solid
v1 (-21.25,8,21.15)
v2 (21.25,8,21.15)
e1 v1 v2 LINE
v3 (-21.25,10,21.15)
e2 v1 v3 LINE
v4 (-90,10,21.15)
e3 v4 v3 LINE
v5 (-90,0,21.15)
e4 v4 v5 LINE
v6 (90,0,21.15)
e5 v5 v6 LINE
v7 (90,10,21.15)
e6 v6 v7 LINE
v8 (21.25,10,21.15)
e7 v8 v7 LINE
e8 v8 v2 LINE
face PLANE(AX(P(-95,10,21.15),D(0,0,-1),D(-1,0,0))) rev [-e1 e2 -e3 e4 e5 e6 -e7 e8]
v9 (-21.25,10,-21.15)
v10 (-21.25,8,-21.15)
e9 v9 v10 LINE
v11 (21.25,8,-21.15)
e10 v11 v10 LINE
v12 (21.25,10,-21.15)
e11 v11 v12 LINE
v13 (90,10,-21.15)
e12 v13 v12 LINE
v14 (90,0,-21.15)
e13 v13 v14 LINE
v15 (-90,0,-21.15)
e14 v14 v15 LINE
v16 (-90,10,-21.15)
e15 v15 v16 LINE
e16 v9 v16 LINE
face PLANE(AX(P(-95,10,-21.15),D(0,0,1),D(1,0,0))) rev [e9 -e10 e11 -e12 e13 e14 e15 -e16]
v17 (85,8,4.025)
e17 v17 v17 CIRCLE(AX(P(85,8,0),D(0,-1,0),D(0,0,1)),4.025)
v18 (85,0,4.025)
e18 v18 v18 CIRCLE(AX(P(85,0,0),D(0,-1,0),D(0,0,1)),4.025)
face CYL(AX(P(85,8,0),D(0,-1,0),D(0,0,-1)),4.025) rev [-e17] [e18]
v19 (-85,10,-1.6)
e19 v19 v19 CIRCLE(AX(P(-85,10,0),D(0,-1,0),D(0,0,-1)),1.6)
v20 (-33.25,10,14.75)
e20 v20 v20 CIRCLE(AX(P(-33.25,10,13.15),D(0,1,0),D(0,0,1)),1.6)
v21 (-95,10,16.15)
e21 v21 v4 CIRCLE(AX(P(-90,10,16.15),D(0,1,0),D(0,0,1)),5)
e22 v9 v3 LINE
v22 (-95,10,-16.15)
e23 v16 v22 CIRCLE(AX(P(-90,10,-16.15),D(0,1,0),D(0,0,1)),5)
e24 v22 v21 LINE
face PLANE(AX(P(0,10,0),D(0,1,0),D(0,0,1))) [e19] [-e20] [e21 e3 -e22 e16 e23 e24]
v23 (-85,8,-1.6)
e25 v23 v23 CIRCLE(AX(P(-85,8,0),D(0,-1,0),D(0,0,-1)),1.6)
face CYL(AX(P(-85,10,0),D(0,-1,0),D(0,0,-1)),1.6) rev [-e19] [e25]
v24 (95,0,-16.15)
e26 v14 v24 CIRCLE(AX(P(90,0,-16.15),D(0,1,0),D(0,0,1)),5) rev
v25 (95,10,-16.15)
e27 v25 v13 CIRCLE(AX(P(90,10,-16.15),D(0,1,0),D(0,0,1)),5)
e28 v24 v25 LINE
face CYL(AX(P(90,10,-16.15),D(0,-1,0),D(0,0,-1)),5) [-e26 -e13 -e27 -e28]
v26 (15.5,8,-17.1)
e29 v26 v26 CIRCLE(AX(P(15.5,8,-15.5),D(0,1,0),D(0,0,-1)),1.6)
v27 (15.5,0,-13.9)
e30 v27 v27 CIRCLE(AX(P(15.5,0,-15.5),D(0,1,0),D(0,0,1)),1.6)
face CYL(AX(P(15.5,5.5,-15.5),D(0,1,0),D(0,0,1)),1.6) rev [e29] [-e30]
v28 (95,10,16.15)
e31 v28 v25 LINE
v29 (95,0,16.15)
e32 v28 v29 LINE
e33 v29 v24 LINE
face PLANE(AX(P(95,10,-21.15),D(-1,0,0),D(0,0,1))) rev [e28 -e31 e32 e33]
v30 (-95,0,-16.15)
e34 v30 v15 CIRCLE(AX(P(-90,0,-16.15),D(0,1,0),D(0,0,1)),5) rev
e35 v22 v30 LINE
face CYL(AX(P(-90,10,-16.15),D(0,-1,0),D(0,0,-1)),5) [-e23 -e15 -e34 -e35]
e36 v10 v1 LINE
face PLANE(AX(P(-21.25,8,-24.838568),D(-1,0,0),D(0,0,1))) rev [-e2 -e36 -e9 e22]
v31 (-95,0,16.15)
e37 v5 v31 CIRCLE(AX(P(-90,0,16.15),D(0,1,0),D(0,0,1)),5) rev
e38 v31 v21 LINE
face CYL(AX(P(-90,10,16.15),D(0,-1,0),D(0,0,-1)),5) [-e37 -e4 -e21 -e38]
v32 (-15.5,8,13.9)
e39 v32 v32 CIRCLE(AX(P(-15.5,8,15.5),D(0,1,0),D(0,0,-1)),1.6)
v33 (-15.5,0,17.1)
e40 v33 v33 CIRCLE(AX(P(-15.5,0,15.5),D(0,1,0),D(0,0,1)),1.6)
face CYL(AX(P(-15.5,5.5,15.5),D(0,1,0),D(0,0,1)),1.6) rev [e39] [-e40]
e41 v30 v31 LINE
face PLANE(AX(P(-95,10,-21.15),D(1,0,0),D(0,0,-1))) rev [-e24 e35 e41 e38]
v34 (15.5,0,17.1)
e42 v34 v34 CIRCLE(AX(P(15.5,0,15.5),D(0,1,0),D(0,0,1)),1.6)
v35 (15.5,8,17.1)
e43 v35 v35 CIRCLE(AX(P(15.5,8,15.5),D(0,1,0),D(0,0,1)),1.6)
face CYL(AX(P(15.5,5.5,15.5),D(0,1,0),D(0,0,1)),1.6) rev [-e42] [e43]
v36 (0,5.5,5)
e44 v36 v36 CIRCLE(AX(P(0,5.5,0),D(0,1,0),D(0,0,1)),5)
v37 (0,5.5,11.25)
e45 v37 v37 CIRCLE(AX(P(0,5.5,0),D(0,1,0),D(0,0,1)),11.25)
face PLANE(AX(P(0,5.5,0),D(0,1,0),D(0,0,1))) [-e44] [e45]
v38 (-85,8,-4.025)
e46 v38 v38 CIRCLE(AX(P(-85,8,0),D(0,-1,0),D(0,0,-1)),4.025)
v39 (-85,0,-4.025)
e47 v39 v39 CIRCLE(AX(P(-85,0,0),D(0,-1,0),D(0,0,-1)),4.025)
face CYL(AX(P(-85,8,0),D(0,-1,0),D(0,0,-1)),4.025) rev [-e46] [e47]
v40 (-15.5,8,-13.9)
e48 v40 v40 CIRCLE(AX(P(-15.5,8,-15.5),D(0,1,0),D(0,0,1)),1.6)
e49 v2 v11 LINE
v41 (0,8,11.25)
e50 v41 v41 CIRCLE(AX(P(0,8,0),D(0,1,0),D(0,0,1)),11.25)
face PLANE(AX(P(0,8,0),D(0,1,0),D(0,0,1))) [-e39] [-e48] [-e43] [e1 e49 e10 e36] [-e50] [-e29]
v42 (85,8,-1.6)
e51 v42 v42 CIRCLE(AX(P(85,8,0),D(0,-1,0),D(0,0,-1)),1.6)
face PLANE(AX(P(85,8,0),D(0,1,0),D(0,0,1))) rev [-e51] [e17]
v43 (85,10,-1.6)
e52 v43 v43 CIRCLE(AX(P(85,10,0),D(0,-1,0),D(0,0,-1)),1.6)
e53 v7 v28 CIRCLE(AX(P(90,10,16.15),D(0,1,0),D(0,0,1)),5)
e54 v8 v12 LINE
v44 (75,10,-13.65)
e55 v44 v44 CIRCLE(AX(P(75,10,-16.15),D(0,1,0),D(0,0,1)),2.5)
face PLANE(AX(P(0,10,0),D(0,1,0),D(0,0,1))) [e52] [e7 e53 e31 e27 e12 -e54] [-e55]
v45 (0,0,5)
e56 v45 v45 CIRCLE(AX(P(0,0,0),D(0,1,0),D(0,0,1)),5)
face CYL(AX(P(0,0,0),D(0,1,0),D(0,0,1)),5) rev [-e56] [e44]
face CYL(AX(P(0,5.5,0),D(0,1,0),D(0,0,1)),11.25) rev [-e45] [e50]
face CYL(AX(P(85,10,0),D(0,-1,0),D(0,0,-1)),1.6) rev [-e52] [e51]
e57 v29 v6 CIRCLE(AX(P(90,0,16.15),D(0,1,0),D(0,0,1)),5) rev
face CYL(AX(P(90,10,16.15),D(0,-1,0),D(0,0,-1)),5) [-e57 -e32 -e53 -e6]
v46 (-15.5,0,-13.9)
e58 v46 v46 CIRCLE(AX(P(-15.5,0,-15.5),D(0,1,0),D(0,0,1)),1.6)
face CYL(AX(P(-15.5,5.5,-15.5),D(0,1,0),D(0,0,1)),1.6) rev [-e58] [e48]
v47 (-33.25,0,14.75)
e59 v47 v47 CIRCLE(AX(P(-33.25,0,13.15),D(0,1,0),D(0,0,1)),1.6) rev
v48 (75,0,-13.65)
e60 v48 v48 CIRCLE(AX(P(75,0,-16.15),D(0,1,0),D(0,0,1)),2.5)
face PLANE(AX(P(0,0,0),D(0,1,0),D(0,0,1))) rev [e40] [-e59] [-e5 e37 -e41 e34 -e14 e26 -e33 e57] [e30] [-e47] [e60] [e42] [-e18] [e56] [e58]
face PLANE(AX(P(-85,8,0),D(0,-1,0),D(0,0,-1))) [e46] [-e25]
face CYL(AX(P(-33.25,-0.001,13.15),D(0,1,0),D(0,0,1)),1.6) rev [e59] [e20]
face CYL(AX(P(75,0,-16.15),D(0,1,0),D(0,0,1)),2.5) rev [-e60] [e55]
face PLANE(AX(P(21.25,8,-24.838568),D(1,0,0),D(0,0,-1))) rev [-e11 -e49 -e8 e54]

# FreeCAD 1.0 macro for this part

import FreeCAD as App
import Part
import Sketcher

V = App.Vector
Q = App.Units.Quantity


def edges_at(feature, points):
    """Names of the edges that pass closest to the given points."""
    edges = feature.Shape.Edges
    near = lambda p: min(range(len(edges)), key=lambda i: edges[i].distToShape(Part.Vertex(*p))[0])
    return sorted({f"Edge{near(p) + 1}" for p in points})

doc = App.newDocument("Part")
body = doc.addObject("PartDesign::Body", "Body")

sketch1 = body.newObject("Sketcher::SketchObject", "Sketch")
sketch1.AttachmentSupport = (doc.getObject("XZ_Plane"), [""])
sketch1.MapMode = "FlatFace"
sketch1.addGeometry([
    Part.LineSegment(V(-95, -21.15, 0), V(-95, 21.15, 0)),
    Part.LineSegment(V(-95, 21.15, 0), V(95, 21.15, 0)),
    Part.LineSegment(V(95, 21.15, 0), V(95, -21.15, 0)),
    Part.LineSegment(V(95, -21.15, 0), V(-95, -21.15, 0)),
], False)
sketch1.addConstraint([
    Sketcher.Constraint("Coincident", 0, 2, 1, 1),
    Sketcher.Constraint("Coincident", 1, 2, 2, 1),
    Sketcher.Constraint("Coincident", 2, 2, 3, 1),
    Sketcher.Constraint("Coincident", 3, 2, 0, 1),
    Sketcher.Constraint("Vertical", 0),
    Sketcher.Constraint("Horizontal", 1),
    Sketcher.Constraint("Vertical", 2),
    Sketcher.Constraint("Horizontal", 3),
    Sketcher.Constraint("Symmetric", 0, 2, 2, 2, -1, 1),
    Sketcher.Constraint("DistanceX", 1, 1, 1, 2, Q("190 mm")),
    Sketcher.Constraint("DistanceY", 0, 1, 0, 2, Q("42.3 mm")),
])
pad1 = body.newObject("PartDesign::Pad", "Pad")
pad1.Profile = sketch1
pad1.Length = 10
pad1.Reversed = True

sketch2 = body.newObject("Sketcher::SketchObject", "Sketch001")
sketch2.AttachmentSupport = (doc.getObject("XZ_Plane"), [""])
sketch2.MapMode = "FlatFace"
sketch2.AttachmentOffset = App.Placement(V(0, 0, -10), App.Rotation())
sketch2.addGeometry([
    Part.LineSegment(V(-21.25, -24.838568, 0), V(-21.25, 24.838568, 0)),
    Part.LineSegment(V(-21.25, 24.838568, 0), V(21.25, 24.838568, 0)),
    Part.LineSegment(V(21.25, 24.838568, 0), V(21.25, -24.838568, 0)),
    Part.LineSegment(V(21.25, -24.838568, 0), V(-21.25, -24.838568, 0)),
], False)
sketch2.addConstraint([
    Sketcher.Constraint("Coincident", 0, 2, 1, 1),
    Sketcher.Constraint("Coincident", 1, 2, 2, 1),
    Sketcher.Constraint("Coincident", 2, 2, 3, 1),
    Sketcher.Constraint("Coincident", 3, 2, 0, 1),
    Sketcher.Constraint("Vertical", 0),
    Sketcher.Constraint("Horizontal", 1),
    Sketcher.Constraint("Vertical", 2),
    Sketcher.Constraint("Horizontal", 3),
    Sketcher.Constraint("Symmetric", 0, 2, 2, 2, -1, 1),
    Sketcher.Constraint("DistanceX", 1, 1, 1, 2, Q("42.5 mm")),
    Sketcher.Constraint("DistanceY", 0, 1, 0, 2, Q("49.677137 mm")),
])
pocket1 = body.newObject("PartDesign::Pocket", "Pocket")
pocket1.Profile = sketch2
pocket1.Length = 2
pocket1.Reversed = True

sketch3 = body.newObject("Sketcher::SketchObject", "Sketch002")
sketch3.AttachmentSupport = (doc.getObject("XZ_Plane"), [""])
sketch3.MapMode = "FlatFace"
sketch3.AttachmentOffset = App.Placement(V(0, 0, -8), App.Rotation())
sketch3.addGeometry([
    Part.Circle(V(-15.5, -15.5, 0), V(0, 0, 1), 1.6),
    Part.Circle(V(15.5, -15.5, 0), V(0, 0, 1), 1.6),
    Part.Circle(V(15.5, 15.5, 0), V(0, 0, 1), 1.6),
    Part.Circle(V(-15.5, 15.5, 0), V(0, 0, 1), 1.6),
    Part.Circle(V(0, 0, 0), V(0, 0, 1), 11.25),
], False)
sketch3.addConstraint([
    Sketcher.Constraint("Coincident", 4, 3, -1, 1),
    Sketcher.Constraint("Equal", 0, 1),
    Sketcher.Constraint("Equal", 1, 2),
    Sketcher.Constraint("Equal", 2, 3),
    Sketcher.Constraint("Symmetric", 0, 3, 2, 3, -1, 1),
    Sketcher.Constraint("Symmetric", 1, 3, 3, 3, -1, 1),
    Sketcher.Constraint("Symmetric", 0, 3, 1, 3, -2),
    Sketcher.Constraint("Diameter", 0, Q("3.2 mm")),
    Sketcher.Constraint("Diameter", 4, Q("22.5 mm")),
    Sketcher.Constraint("DistanceX", 0, 3, 1, 3, Q("31 mm")),
    Sketcher.Constraint("DistanceY", 1, 3, 2, 3, Q("31 mm")),
])
pocket2 = body.newObject("PartDesign::Pocket", "Pocket001")
pocket2.Profile = sketch3
pocket2.Length = 2.5
pocket2.Reversed = True

sketch4 = body.newObject("Sketcher::SketchObject", "Sketch003")
sketch4.AttachmentSupport = (doc.getObject("XZ_Plane"), [""])
sketch4.MapMode = "FlatFace"
sketch4.AttachmentOffset = App.Placement(V(0, 0, -5.5), App.Rotation())
sketch4.addGeometry(Part.Circle(V(0, 0, 0), V(0, 0, 1), 5), False)
sketch4.addConstraint([
    Sketcher.Constraint("Coincident", 0, 3, -1, 1),
    Sketcher.Constraint("Diameter", 0, Q("10 mm")),
])
pocket3 = body.newObject("PartDesign::Pocket", "Pocket002")
pocket3.Profile = sketch4
pocket3.Type = "ThroughAll"
pocket3.Reversed = True

sketch5 = body.newObject("Sketcher::SketchObject", "Sketch004")
sketch5.AttachmentSupport = (doc.getObject("XZ_Plane"), [""])
sketch5.MapMode = "FlatFace"
sketch5.addGeometry([
    Part.Circle(V(-85, 0, 0), V(0, 0, 1), 4.025),
    Part.Circle(V(85, 0, 0), V(0, 0, 1), 4.025),
], False)
sketch5.addConstraint([
    Sketcher.Constraint("Equal", 0, 1),
    Sketcher.Constraint("Symmetric", 0, 3, 1, 3, -1, 1),
    Sketcher.Constraint("PointOnObject", 0, 3, -1),
    Sketcher.Constraint("Diameter", 0, Q("8.05 mm")),
    Sketcher.Constraint("DistanceX", 0, 3, -1, 1, Q("85 mm")),
])
pocket4 = body.newObject("PartDesign::Pocket", "Pocket003")
pocket4.Profile = sketch5
pocket4.Length = 8

sketch6 = body.newObject("Sketcher::SketchObject", "Sketch005")
sketch6.AttachmentSupport = (doc.getObject("XZ_Plane"), [""])
sketch6.MapMode = "FlatFace"
sketch6.AttachmentOffset = App.Placement(V(0, 0, -8), App.Rotation())
sketch6.addGeometry(Part.Circle(V(-85, 0, 0), V(0, 0, 1), 1.6), False)
sketch6.addConstraint([
    Sketcher.Constraint("PointOnObject", 0, 3, -1),
    Sketcher.Constraint("Diameter", 0, Q("3.2 mm")),
    Sketcher.Constraint("DistanceX", 0, 3, -1, 1, Q("85 mm")),
])
pocket5 = body.newObject("PartDesign::Pocket", "Pocket004")
pocket5.Profile = sketch6
pocket5.Type = "ThroughAll"

sketch7 = body.newObject("Sketcher::SketchObject", "Sketch006")
sketch7.AttachmentSupport = (doc.getObject("XZ_Plane"), [""])
sketch7.MapMode = "FlatFace"
sketch7.AttachmentOffset = App.Placement(V(0, 0, -8), App.Rotation())
sketch7.addGeometry(Part.Circle(V(85, 0, 0), V(0, 0, 1), 1.6), False)
sketch7.addConstraint([
    Sketcher.Constraint("PointOnObject", 0, 3, -1),
    Sketcher.Constraint("Diameter", 0, Q("3.2 mm")),
    Sketcher.Constraint("DistanceX", -1, 1, 0, 3, Q("85 mm")),
])
pocket6 = body.newObject("PartDesign::Pocket", "Pocket005")
pocket6.Profile = sketch7
pocket6.Type = "ThroughAll"
doc.recompute()

fillet = body.newObject("PartDesign::Fillet", "Fillet")
fillet.Base = (pocket6, edges_at(pocket6, [
    (95, 5, 21.15),
    (-95, 5, 21.15),
    (-95, 5, -21.15),
    (95, 5, -21.15),
]))
fillet.Radius = 5

sketch8 = body.newObject("Sketcher::SketchObject", "Sketch007")
sketch8.AttachmentSupport = (doc.getObject("XZ_Plane"), [""])
sketch8.MapMode = "FlatFace"
sketch8.AttachmentOffset = App.Placement(V(0, 0, -8), App.Rotation())
sketch8.addGeometry([
    Part.Circle(V(15.5, -15.5, 0), V(0, 0, 1), 1.6),
    Part.Circle(V(15.5, 15.5, 0), V(0, 0, 1), 1.6),
    Part.Circle(V(-15.5, 15.5, 0), V(0, 0, 1), 1.6),
    Part.Circle(V(-15.5, -15.5, 0), V(0, 0, 1), 1.6),
], False)
sketch8.addConstraint([
    Sketcher.Constraint("Equal", 0, 1),
    Sketcher.Constraint("Equal", 1, 2),
    Sketcher.Constraint("Equal", 2, 3),
    Sketcher.Constraint("Symmetric", 0, 3, 2, 3, -1, 1),
    Sketcher.Constraint("Symmetric", 1, 3, 3, 3, -1, 1),
    Sketcher.Constraint("Symmetric", 1, 3, 2, 3, -2),
    Sketcher.Constraint("Diameter", 0, Q("3.2 mm")),
    Sketcher.Constraint("DistanceY", 0, 3, 1, 3, Q("31 mm")),
    Sketcher.Constraint("DistanceX", 2, 3, 1, 3, Q("31 mm")),
])
pocket7 = body.newObject("PartDesign::Pocket", "Pocket006")
pocket7.Profile = sketch8
pocket7.Type = "ThroughAll"
pocket7.Reversed = True

sketch9 = body.newObject("Sketcher::SketchObject", "Sketch008")
sketch9.AttachmentSupport = (doc.getObject("XZ_Plane"), [""])
sketch9.MapMode = "FlatFace"
sketch9.AttachmentOffset = App.Placement(V(0, 0, -10), App.Rotation())
sketch9.addGeometry(Part.Circle(V(-33.25, 13.15, 0), V(0, 0, 1), 1.6), False)
sketch9.addConstraint([
    Sketcher.Constraint("Diameter", 0, Q("3.2 mm")),
    Sketcher.Constraint("DistanceX", 0, 3, -1, 1, Q("33.25 mm")),
    Sketcher.Constraint("DistanceY", -1, 1, 0, 3, Q("13.15 mm")),
])
pocket8 = body.newObject("PartDesign::Pocket", "Pocket007")
pocket8.Profile = sketch9
pocket8.Type = "UpToFirst"
pocket8.Reversed = True

sketch10 = body.newObject("Sketcher::SketchObject", "Sketch009")
sketch10.AttachmentSupport = (doc.getObject("XZ_Plane"), [""])
sketch10.MapMode = "FlatFace"
sketch10.AttachmentOffset = App.Placement(V(0, 0, -10), App.Rotation())
sketch10.addGeometry(Part.Circle(V(75, -16.15, 0), V(0, 0, 1), 2.5), False)
sketch10.addConstraint([
    Sketcher.Constraint("Diameter", 0, Q("5 mm")),
    Sketcher.Constraint("DistanceX", -1, 1, 0, 3, Q("75 mm")),
    Sketcher.Constraint("DistanceY", 0, 3, -1, 1, Q("16.15 mm")),
])
pocket9 = body.newObject("PartDesign::Pocket", "Pocket008")
pocket9.Profile = sketch10
pocket9.Type = "ThroughAll"
pocket9.Reversed = True

doc.recompute()
